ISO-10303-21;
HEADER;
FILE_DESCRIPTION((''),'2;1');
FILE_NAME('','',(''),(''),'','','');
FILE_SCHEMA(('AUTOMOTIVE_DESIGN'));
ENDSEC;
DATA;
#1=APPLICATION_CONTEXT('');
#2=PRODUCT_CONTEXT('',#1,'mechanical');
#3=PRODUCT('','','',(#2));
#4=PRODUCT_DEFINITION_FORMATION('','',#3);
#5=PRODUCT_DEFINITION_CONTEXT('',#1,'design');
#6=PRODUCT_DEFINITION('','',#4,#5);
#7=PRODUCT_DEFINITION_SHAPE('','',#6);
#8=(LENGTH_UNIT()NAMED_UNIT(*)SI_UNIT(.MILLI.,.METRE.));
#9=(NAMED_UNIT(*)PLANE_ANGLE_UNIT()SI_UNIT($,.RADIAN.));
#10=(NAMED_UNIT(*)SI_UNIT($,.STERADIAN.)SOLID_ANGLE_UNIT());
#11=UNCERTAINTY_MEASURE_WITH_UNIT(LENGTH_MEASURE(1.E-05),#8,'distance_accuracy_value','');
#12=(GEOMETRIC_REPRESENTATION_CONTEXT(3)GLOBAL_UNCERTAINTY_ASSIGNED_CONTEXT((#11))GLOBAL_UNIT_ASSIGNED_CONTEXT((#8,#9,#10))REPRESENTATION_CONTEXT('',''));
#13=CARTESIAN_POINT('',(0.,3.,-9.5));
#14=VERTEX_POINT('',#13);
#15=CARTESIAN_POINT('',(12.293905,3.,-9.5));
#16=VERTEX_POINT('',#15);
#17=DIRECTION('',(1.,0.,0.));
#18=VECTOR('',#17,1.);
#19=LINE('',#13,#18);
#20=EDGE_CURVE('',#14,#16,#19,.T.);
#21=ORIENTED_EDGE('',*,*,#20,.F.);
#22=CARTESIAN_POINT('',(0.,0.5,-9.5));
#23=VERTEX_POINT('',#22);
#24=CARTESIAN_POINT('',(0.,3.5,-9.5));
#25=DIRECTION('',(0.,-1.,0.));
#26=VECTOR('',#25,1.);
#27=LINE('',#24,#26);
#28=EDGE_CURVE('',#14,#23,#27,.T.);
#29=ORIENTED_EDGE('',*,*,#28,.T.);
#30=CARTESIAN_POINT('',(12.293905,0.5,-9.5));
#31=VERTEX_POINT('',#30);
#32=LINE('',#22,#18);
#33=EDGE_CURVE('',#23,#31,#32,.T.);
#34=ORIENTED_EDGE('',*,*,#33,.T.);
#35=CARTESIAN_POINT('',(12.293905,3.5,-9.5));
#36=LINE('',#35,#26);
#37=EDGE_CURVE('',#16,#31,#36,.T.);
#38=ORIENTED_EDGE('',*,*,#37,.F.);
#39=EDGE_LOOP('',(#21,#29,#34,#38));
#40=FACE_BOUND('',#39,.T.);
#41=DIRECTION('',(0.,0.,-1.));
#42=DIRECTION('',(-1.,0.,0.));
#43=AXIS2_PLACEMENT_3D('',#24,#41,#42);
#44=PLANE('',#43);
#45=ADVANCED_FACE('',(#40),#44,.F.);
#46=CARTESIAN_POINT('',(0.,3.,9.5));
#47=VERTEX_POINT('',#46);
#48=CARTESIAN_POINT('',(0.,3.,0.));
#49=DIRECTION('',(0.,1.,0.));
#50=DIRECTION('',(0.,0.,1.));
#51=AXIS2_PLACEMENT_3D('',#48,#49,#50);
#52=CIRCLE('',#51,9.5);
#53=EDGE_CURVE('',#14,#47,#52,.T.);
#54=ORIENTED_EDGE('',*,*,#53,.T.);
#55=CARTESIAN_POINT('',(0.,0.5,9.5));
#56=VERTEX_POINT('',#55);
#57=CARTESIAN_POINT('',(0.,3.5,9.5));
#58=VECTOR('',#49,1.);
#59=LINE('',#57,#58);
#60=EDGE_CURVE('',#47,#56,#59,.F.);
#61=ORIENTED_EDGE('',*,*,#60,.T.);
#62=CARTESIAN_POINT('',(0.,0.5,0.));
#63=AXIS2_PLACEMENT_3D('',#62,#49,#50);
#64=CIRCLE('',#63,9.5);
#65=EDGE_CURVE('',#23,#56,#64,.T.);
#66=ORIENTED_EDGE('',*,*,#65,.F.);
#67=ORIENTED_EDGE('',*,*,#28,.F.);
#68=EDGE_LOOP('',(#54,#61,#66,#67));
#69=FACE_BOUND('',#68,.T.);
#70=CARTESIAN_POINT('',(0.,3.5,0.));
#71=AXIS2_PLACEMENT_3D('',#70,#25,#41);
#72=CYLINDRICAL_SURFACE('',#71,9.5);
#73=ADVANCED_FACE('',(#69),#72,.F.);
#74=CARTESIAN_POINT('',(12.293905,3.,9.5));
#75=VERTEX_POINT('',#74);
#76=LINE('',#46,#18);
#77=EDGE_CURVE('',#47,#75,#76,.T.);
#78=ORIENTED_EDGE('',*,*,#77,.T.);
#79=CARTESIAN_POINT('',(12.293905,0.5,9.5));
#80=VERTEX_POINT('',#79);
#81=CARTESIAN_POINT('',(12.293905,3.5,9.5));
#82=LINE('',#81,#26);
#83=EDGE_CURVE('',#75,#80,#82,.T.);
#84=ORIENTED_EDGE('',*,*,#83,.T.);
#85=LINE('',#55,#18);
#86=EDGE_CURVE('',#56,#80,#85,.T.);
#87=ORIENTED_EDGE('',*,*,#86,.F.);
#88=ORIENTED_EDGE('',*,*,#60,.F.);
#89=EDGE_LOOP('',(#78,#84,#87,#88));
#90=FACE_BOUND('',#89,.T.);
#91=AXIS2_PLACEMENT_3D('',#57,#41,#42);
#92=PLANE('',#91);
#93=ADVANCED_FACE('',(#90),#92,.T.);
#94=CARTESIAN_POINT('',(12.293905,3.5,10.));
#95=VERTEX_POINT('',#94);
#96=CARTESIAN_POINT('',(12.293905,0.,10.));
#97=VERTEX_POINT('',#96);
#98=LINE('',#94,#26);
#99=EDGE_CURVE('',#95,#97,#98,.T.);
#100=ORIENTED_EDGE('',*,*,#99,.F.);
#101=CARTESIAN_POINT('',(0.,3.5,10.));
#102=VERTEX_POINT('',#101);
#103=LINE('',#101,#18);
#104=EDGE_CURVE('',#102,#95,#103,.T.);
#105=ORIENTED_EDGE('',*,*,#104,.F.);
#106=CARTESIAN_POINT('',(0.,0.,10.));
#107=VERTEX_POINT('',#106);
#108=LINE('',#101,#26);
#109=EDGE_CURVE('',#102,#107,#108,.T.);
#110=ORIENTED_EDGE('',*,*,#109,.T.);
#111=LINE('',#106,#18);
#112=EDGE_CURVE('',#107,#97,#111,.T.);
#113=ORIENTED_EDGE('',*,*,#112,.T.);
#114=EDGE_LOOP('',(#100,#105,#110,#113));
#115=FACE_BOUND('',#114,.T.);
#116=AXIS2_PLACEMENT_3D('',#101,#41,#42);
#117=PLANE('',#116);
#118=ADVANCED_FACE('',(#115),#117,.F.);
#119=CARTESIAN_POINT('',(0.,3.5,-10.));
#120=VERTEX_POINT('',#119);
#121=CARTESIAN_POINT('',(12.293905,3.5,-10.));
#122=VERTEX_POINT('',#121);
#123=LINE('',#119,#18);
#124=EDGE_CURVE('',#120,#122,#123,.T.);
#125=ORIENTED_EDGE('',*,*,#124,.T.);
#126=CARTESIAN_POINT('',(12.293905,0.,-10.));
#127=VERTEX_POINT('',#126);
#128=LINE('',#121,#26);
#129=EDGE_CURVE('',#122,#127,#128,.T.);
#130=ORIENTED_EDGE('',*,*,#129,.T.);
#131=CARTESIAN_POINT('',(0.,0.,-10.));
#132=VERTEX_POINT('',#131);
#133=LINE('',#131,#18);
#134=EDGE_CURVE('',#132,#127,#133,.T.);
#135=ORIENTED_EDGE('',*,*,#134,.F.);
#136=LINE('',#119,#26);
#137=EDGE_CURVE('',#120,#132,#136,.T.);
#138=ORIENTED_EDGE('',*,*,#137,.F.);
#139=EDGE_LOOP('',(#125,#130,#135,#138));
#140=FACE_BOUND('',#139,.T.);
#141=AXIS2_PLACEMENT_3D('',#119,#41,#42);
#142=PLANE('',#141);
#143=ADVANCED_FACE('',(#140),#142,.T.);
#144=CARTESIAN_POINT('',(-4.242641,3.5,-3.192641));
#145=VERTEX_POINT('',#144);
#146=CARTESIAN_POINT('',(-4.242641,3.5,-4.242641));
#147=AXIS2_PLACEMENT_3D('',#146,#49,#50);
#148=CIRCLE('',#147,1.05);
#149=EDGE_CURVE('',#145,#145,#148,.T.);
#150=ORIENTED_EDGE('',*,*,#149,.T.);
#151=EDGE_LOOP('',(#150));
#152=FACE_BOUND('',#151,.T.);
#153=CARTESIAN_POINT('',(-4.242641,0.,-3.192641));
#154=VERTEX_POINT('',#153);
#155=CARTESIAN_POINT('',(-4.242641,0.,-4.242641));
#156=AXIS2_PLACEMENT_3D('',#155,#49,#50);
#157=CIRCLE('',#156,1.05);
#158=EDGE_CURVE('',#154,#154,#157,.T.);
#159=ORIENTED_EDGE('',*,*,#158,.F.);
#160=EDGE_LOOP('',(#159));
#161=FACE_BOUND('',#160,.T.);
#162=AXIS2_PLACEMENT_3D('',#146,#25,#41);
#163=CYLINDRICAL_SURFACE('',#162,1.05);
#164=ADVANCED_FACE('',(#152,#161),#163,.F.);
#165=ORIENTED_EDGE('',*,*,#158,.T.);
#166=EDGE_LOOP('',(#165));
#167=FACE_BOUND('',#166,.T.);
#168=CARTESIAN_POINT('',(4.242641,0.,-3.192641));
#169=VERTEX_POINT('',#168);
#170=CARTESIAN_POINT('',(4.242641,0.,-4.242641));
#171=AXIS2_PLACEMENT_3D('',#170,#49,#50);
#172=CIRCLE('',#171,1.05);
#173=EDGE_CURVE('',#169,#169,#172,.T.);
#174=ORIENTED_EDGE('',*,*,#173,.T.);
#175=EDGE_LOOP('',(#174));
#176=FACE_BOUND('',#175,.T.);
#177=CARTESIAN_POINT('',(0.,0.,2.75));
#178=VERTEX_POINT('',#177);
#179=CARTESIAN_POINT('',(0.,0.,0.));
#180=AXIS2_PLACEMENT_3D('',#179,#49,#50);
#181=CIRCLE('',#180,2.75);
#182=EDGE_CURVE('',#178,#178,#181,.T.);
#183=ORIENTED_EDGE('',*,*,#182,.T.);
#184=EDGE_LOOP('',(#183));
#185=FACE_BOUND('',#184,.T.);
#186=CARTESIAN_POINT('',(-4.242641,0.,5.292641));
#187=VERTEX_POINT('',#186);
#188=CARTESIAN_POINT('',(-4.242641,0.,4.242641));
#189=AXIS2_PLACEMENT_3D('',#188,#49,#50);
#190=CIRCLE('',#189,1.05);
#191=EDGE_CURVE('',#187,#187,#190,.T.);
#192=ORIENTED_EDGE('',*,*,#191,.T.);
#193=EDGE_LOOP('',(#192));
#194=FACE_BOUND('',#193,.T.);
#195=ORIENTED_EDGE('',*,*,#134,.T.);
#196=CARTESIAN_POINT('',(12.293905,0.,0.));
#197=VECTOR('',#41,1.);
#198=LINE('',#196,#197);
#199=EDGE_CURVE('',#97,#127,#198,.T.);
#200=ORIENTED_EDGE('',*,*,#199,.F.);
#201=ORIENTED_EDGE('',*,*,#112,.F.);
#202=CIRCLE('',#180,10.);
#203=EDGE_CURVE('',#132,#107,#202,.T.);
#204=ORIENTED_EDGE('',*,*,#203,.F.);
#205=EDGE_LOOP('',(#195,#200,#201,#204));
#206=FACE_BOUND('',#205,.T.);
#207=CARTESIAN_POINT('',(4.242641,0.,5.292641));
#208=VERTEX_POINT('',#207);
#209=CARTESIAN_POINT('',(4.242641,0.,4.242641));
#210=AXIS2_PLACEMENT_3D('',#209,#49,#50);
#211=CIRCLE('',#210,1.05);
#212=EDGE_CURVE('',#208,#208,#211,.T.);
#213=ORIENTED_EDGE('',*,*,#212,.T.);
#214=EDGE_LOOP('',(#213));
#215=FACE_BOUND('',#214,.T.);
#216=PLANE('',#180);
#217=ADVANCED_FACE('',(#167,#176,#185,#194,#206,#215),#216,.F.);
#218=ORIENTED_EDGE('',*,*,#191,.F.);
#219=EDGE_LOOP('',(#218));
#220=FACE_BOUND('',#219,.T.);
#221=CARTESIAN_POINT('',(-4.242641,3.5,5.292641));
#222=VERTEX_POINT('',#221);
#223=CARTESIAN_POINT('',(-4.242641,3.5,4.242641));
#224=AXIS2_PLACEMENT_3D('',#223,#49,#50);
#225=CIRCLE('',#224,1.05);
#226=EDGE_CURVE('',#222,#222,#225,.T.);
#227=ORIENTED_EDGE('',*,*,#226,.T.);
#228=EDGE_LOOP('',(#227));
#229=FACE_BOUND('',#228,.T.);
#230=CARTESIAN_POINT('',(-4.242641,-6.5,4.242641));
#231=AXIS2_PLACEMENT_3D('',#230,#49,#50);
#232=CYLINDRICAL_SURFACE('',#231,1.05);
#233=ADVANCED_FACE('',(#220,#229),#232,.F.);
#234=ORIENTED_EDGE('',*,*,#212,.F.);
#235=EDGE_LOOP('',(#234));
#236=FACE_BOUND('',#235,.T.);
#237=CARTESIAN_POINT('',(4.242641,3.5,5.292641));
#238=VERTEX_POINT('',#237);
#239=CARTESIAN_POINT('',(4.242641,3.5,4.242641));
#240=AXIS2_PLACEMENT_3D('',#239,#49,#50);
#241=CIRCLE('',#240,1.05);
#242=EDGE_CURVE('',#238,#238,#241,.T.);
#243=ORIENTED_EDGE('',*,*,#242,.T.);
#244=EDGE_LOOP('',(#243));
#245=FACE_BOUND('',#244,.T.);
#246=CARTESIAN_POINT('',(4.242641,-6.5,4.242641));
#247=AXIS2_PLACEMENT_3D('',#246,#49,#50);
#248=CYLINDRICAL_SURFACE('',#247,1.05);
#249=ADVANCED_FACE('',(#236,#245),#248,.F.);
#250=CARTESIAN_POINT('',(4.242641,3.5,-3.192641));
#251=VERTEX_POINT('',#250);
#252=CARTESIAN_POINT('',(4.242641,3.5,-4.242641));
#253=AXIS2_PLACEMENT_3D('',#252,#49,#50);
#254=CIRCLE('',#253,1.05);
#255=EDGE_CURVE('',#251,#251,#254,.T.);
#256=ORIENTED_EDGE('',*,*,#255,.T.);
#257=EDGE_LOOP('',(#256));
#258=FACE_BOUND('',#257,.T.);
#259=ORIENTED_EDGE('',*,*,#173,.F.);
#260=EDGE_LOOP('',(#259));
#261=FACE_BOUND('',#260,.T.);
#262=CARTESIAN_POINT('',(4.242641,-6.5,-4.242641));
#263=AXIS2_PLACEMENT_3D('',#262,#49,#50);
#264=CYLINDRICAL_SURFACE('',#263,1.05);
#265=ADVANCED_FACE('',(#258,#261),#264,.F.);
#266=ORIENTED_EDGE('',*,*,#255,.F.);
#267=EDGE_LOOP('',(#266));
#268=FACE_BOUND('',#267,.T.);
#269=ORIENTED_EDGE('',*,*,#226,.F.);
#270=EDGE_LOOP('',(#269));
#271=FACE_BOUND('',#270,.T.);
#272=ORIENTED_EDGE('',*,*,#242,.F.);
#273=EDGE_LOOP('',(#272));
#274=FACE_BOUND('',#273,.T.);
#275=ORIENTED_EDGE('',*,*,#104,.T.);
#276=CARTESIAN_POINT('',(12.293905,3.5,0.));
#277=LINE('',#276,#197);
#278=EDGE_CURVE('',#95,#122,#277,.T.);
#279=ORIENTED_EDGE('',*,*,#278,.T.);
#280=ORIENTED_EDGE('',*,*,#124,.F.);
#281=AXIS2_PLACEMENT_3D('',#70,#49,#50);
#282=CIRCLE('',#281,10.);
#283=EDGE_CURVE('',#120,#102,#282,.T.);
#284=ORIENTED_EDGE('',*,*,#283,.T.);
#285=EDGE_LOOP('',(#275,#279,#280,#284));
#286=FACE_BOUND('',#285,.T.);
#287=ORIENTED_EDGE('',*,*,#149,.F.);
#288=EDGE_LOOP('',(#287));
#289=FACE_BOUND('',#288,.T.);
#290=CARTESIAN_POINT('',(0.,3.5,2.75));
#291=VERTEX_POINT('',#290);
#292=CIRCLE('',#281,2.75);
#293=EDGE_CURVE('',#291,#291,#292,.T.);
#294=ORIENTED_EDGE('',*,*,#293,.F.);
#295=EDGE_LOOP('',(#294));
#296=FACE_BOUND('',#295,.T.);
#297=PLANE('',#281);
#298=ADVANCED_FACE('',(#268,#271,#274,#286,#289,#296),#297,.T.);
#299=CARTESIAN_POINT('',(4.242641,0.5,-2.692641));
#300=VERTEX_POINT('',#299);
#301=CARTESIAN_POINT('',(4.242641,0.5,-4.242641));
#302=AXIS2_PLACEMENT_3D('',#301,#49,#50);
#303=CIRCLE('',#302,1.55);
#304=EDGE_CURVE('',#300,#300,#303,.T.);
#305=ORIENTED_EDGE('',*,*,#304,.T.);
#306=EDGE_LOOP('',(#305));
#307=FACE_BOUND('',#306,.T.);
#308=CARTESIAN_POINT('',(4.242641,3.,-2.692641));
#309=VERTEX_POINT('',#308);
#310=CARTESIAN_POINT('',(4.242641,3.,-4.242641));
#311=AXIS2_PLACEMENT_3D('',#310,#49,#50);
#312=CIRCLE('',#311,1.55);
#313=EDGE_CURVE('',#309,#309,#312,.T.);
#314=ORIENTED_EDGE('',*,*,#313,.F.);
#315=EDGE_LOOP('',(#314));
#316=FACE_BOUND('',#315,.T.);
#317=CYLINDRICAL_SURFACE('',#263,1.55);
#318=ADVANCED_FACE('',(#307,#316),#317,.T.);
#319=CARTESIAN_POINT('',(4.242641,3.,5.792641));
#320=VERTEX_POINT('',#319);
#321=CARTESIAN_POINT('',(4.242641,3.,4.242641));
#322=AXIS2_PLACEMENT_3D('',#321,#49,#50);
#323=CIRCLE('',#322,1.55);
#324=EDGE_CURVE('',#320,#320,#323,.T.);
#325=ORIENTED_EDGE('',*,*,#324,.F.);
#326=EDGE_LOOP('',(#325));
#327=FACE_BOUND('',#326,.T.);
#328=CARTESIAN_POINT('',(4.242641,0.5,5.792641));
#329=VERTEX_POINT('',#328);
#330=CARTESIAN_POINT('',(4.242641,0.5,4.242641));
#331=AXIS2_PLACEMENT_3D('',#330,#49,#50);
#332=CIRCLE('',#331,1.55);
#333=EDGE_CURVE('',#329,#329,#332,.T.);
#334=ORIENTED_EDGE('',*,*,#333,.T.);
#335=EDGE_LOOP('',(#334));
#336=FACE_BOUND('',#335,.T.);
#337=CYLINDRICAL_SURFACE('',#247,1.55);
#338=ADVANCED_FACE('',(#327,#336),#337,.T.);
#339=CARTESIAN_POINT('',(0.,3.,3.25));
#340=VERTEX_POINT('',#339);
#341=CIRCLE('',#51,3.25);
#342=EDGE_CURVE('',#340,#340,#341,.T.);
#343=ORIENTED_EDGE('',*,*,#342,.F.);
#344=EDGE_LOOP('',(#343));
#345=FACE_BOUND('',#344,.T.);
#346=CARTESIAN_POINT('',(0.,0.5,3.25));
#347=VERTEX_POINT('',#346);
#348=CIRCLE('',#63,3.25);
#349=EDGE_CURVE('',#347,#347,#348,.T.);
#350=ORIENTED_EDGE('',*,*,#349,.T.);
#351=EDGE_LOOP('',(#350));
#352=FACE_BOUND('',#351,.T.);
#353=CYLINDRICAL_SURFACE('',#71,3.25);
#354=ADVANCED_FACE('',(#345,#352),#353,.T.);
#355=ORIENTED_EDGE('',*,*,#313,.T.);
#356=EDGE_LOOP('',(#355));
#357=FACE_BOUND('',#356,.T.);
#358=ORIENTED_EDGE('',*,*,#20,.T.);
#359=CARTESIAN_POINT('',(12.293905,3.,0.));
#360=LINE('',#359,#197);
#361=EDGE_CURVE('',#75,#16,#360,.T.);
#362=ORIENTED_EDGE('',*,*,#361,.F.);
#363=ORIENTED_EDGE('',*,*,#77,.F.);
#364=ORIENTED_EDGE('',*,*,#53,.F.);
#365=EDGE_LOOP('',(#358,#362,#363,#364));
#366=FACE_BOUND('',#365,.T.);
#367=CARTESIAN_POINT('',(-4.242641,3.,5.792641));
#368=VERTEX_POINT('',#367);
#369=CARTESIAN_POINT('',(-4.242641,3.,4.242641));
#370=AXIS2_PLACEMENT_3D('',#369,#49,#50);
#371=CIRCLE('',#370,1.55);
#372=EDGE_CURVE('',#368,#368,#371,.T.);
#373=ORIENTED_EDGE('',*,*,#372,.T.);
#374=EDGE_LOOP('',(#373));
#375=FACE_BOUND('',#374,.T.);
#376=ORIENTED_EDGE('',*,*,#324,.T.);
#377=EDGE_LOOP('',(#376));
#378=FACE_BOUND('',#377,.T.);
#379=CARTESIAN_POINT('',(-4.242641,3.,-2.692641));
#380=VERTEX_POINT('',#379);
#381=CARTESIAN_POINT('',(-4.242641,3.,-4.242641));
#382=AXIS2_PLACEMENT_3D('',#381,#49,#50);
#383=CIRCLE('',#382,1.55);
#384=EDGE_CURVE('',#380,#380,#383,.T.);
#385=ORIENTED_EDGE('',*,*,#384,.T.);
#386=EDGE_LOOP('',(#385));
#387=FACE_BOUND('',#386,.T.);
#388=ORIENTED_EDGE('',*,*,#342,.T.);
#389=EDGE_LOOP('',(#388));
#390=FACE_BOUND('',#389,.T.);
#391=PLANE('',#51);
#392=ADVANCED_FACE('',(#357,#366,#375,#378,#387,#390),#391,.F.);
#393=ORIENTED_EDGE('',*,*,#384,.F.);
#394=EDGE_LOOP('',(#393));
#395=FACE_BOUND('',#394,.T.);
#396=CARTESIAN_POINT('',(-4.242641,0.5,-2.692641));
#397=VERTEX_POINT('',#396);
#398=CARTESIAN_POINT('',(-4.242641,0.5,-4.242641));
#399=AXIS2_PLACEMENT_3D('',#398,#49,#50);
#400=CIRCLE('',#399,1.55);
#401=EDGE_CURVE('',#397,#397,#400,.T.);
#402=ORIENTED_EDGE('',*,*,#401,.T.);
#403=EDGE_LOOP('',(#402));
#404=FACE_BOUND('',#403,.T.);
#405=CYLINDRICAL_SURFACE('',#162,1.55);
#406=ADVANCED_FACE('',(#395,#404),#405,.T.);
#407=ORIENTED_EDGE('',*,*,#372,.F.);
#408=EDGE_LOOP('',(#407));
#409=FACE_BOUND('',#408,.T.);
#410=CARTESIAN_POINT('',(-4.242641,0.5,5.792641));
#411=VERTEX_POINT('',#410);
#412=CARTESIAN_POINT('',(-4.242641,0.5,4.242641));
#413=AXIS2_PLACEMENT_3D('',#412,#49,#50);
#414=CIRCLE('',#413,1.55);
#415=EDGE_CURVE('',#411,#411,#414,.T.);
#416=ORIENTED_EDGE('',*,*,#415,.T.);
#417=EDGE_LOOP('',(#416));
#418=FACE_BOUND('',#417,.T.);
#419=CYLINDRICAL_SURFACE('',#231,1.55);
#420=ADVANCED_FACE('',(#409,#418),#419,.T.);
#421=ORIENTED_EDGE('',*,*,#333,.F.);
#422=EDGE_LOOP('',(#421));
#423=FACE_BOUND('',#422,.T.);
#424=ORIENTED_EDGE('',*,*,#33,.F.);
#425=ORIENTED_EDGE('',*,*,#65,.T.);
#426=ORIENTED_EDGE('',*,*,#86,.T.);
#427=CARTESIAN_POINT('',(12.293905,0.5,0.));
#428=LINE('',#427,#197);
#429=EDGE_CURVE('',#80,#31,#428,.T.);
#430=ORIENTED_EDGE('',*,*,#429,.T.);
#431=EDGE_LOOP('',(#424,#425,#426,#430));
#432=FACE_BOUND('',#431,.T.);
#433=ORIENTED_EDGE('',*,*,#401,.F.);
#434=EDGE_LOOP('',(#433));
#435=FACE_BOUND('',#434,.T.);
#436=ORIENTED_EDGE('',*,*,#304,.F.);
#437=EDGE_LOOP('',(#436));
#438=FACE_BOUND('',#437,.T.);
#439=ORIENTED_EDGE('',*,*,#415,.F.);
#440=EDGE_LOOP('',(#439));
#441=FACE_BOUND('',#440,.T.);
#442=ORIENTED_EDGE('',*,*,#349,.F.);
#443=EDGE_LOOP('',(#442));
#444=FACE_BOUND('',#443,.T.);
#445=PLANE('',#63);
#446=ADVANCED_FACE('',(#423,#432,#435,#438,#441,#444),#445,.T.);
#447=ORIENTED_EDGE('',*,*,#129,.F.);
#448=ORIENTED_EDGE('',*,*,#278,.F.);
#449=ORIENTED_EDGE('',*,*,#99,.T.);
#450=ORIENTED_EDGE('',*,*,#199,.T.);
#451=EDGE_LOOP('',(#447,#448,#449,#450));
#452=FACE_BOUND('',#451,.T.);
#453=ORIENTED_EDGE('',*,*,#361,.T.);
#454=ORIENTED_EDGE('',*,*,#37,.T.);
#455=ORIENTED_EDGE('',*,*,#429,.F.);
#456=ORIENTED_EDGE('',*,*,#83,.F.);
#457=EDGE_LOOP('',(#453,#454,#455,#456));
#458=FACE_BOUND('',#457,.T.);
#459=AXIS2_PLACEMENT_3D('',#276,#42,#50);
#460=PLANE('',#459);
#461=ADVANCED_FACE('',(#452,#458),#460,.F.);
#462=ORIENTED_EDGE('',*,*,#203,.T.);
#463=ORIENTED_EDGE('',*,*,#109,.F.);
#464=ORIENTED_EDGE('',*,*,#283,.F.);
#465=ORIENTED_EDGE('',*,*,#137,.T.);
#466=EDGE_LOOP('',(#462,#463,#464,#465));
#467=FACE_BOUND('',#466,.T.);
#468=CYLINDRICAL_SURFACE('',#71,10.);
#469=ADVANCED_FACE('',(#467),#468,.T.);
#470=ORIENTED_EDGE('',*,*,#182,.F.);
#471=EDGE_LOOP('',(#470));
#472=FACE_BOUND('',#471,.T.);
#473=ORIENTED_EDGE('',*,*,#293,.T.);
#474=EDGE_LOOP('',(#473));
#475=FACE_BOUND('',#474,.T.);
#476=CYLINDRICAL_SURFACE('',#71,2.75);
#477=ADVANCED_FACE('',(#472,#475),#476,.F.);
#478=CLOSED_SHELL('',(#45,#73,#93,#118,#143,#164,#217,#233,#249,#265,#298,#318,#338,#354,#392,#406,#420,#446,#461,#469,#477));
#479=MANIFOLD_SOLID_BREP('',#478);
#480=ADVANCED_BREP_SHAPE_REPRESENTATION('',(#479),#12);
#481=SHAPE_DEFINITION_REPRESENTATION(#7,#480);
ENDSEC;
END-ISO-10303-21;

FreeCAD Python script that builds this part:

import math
import FreeCAD as App
import Part
import Sketcher

V = App.Vector


def faces_at(feature, points):
    """Names of the faces that lie closest to the given points."""
    faces = feature.Shape.Faces
    near = lambda p: min(range(len(faces)), key=lambda i: faces[i].distToShape(Part.Vertex(*p))[0])
    return sorted({f"Face{near(p) + 1}" for p in points})

doc = App.newDocument("Part")
params = doc.addObject("Spreadsheet::Sheet", "Params")
for row, (alias, value) in enumerate([
    ("sketch1_diameter", "20 mm"),
    ("sketch1_diameter2", "2.1 mm"),
    ("sketch1_diameter3", "5.5 mm"),
    ("pad1_length", "3.5 mm"),
    ("sketch2_diameter", "2.1 mm"),
    ("pocket1_length", "10 mm"),
    ("sketch3_radius", "10 mm"),
    ("pad2_length", "3.5 mm"),
    ("thickness_wall", "0.5 mm"),
], start=1):
    params.set(f"A{row}", alias)
    params.set(f"B{row}", "=" + value)
    params.setAlias(f"B{row}", alias)

body = doc.addObject("PartDesign::Body", "Body")

# Sketch on XZ plane
sketch1 = body.newObject("Sketcher::SketchObject", "Sketch")
sketch1.AttachmentSupport = (doc.getObject("XZ_Plane"), [""])
sketch1.MapMode = "FlatFace"
sketch1.addGeometry([
    Part.Circle(V(0, 0, 0), V(0, 0, 1), 10),
    Part.Circle(V(-4.2, -4.2, 0), V(0, 0, 1), 1.1),
    Part.Circle(V(0, 0, 0), V(0, 0, 1), 2.8),
], False)
sketch1.addConstraint([
    Sketcher.Constraint("Coincident", 0, 3, -1, 1),
    Sketcher.Constraint("Coincident", 2, 3, -1, 1),
    Sketcher.Constraint("Diameter", 0, 20.0),
    Sketcher.Constraint("Diameter", 1, 2.1),
    Sketcher.Constraint("Diameter", 2, 5.5),
    Sketcher.Constraint("DistanceX", 1, 3, -1, 1, 4.242641),
    Sketcher.Constraint("DistanceY", 1, 3, -1, 1, 4.242641),
])
sketch1.setExpression("Constraints[2]", "Params.sketch1_diameter")
sketch1.setExpression("Constraints[3]", "Params.sketch1_diameter2")
sketch1.setExpression("Constraints[4]", "Params.sketch1_diameter3")
pad1 = body.newObject("PartDesign::Pad", "Pad")
pad1.Profile = sketch1
pad1.setExpression("Length", "Params.pad1_length")
pad1.Reversed = True

# Sketch on XZ plane
sketch2 = body.newObject("Sketcher::SketchObject", "Sketch001")
sketch2.AttachmentSupport = (doc.getObject("XZ_Plane"), [""])
sketch2.MapMode = "FlatFace"
sketch2.AttachmentOffset = App.Placement(V(0, 0, -3.5), App.Rotation())
sketch2.addGeometry([
    Part.Circle(V(-4.2, 4.2, 0), V(0, 0, 1), 1.1),
    Part.Circle(V(4.2, -4.2, 0), V(0, 0, 1), 1.1),
    Part.Circle(V(4.2, 4.2, 0), V(0, 0, 1), 1.1),
], False)
sketch2.addConstraint([
    Sketcher.Constraint("Equal", 0, 1),
    Sketcher.Constraint("Equal", 1, 2),
    Sketcher.Constraint("Symmetric", 0, 3, 1, 3, -1, 1),
    Sketcher.Constraint("Symmetric", 0, 3, 2, 3, -2),
    Sketcher.Constraint("Diameter", 0, 2.1),
    Sketcher.Constraint("DistanceX", 0, 3, -1, 1, 4.242641),
    Sketcher.Constraint("DistanceY", -1, 1, 0, 3, 4.242641),
])
sketch2.setExpression("Constraints[4]", "Params.sketch2_diameter")
pocket1 = body.newObject("PartDesign::Pocket", "Pocket")
pocket1.Profile = sketch2
pocket1.setExpression("Length", "Params.pocket1_length")
pocket1.Reversed = True

# Sketch on XZ plane
sketch3 = body.newObject("Sketcher::SketchObject", "Sketch002")
sketch3.AttachmentSupport = (doc.getObject("XZ_Plane"), [""])
sketch3.MapMode = "FlatFace"
sketch3.addGeometry([
    Part.LineSegment(V(12, 10, 0), V(0, 10, 0)),  # 0
    Part.ArcOfCircle(Part.Circle(V(0, 0, 0), V(0, 0, 1), 10), math.radians(0), math.radians(90)),  # 1
    Part.ArcOfCircle(Part.Circle(V(0, 0, 0), V(0, 0, 1), 10), math.radians(-90), math.radians(0)),  # 2
    Part.LineSegment(V(0, -10, 0), V(12, -10, 0)),  # 3
    Part.LineSegment(V(12, -10, 0), V(12, 10, 0)),  # 4
], False)
sketch3.addConstraint([
    Sketcher.Constraint("Tangent", 0, 2, 1, 2),
    Sketcher.Constraint("Tangent", 1, 1, 2, 2),
    Sketcher.Constraint("Tangent", 2, 1, 3, 1),
    Sketcher.Constraint("Coincident", 3, 2, 4, 1),
    Sketcher.Constraint("Coincident", 4, 2, 0, 1),
    Sketcher.Constraint("Horizontal", 0),
    Sketcher.Constraint("Horizontal", 3),
    Sketcher.Constraint("Vertical", 4),
    Sketcher.Constraint("Coincident", 1, 3, -1, 1),
    Sketcher.Constraint("Equal", 1, 2),
    Sketcher.Constraint("PointOnObject", 1, 1, -1),
    Sketcher.Constraint("Radius", 1, 10.0),
    Sketcher.Constraint("DistanceX", 0, 2, 0, 1, 12.293905),
])
sketch3.setExpression("Constraints[11]", "Params.sketch3_radius")
pad2 = body.newObject("PartDesign::Pad", "Pad001")
pad2.Profile = sketch3
pad2.setExpression("Length", "Params.pad2_length")
pad2.Reversed = True
doc.recompute()

thickness = body.newObject("PartDesign::Thickness", "Thickness")
thickness.Base = (pad2, faces_at(pad2, [(12.294, 1.75, 0)]))
thickness.setExpression("Value", "Params.thickness_wall")
thickness.Reversed = True
thickness.Join = "Intersection"

doc.recompute()
